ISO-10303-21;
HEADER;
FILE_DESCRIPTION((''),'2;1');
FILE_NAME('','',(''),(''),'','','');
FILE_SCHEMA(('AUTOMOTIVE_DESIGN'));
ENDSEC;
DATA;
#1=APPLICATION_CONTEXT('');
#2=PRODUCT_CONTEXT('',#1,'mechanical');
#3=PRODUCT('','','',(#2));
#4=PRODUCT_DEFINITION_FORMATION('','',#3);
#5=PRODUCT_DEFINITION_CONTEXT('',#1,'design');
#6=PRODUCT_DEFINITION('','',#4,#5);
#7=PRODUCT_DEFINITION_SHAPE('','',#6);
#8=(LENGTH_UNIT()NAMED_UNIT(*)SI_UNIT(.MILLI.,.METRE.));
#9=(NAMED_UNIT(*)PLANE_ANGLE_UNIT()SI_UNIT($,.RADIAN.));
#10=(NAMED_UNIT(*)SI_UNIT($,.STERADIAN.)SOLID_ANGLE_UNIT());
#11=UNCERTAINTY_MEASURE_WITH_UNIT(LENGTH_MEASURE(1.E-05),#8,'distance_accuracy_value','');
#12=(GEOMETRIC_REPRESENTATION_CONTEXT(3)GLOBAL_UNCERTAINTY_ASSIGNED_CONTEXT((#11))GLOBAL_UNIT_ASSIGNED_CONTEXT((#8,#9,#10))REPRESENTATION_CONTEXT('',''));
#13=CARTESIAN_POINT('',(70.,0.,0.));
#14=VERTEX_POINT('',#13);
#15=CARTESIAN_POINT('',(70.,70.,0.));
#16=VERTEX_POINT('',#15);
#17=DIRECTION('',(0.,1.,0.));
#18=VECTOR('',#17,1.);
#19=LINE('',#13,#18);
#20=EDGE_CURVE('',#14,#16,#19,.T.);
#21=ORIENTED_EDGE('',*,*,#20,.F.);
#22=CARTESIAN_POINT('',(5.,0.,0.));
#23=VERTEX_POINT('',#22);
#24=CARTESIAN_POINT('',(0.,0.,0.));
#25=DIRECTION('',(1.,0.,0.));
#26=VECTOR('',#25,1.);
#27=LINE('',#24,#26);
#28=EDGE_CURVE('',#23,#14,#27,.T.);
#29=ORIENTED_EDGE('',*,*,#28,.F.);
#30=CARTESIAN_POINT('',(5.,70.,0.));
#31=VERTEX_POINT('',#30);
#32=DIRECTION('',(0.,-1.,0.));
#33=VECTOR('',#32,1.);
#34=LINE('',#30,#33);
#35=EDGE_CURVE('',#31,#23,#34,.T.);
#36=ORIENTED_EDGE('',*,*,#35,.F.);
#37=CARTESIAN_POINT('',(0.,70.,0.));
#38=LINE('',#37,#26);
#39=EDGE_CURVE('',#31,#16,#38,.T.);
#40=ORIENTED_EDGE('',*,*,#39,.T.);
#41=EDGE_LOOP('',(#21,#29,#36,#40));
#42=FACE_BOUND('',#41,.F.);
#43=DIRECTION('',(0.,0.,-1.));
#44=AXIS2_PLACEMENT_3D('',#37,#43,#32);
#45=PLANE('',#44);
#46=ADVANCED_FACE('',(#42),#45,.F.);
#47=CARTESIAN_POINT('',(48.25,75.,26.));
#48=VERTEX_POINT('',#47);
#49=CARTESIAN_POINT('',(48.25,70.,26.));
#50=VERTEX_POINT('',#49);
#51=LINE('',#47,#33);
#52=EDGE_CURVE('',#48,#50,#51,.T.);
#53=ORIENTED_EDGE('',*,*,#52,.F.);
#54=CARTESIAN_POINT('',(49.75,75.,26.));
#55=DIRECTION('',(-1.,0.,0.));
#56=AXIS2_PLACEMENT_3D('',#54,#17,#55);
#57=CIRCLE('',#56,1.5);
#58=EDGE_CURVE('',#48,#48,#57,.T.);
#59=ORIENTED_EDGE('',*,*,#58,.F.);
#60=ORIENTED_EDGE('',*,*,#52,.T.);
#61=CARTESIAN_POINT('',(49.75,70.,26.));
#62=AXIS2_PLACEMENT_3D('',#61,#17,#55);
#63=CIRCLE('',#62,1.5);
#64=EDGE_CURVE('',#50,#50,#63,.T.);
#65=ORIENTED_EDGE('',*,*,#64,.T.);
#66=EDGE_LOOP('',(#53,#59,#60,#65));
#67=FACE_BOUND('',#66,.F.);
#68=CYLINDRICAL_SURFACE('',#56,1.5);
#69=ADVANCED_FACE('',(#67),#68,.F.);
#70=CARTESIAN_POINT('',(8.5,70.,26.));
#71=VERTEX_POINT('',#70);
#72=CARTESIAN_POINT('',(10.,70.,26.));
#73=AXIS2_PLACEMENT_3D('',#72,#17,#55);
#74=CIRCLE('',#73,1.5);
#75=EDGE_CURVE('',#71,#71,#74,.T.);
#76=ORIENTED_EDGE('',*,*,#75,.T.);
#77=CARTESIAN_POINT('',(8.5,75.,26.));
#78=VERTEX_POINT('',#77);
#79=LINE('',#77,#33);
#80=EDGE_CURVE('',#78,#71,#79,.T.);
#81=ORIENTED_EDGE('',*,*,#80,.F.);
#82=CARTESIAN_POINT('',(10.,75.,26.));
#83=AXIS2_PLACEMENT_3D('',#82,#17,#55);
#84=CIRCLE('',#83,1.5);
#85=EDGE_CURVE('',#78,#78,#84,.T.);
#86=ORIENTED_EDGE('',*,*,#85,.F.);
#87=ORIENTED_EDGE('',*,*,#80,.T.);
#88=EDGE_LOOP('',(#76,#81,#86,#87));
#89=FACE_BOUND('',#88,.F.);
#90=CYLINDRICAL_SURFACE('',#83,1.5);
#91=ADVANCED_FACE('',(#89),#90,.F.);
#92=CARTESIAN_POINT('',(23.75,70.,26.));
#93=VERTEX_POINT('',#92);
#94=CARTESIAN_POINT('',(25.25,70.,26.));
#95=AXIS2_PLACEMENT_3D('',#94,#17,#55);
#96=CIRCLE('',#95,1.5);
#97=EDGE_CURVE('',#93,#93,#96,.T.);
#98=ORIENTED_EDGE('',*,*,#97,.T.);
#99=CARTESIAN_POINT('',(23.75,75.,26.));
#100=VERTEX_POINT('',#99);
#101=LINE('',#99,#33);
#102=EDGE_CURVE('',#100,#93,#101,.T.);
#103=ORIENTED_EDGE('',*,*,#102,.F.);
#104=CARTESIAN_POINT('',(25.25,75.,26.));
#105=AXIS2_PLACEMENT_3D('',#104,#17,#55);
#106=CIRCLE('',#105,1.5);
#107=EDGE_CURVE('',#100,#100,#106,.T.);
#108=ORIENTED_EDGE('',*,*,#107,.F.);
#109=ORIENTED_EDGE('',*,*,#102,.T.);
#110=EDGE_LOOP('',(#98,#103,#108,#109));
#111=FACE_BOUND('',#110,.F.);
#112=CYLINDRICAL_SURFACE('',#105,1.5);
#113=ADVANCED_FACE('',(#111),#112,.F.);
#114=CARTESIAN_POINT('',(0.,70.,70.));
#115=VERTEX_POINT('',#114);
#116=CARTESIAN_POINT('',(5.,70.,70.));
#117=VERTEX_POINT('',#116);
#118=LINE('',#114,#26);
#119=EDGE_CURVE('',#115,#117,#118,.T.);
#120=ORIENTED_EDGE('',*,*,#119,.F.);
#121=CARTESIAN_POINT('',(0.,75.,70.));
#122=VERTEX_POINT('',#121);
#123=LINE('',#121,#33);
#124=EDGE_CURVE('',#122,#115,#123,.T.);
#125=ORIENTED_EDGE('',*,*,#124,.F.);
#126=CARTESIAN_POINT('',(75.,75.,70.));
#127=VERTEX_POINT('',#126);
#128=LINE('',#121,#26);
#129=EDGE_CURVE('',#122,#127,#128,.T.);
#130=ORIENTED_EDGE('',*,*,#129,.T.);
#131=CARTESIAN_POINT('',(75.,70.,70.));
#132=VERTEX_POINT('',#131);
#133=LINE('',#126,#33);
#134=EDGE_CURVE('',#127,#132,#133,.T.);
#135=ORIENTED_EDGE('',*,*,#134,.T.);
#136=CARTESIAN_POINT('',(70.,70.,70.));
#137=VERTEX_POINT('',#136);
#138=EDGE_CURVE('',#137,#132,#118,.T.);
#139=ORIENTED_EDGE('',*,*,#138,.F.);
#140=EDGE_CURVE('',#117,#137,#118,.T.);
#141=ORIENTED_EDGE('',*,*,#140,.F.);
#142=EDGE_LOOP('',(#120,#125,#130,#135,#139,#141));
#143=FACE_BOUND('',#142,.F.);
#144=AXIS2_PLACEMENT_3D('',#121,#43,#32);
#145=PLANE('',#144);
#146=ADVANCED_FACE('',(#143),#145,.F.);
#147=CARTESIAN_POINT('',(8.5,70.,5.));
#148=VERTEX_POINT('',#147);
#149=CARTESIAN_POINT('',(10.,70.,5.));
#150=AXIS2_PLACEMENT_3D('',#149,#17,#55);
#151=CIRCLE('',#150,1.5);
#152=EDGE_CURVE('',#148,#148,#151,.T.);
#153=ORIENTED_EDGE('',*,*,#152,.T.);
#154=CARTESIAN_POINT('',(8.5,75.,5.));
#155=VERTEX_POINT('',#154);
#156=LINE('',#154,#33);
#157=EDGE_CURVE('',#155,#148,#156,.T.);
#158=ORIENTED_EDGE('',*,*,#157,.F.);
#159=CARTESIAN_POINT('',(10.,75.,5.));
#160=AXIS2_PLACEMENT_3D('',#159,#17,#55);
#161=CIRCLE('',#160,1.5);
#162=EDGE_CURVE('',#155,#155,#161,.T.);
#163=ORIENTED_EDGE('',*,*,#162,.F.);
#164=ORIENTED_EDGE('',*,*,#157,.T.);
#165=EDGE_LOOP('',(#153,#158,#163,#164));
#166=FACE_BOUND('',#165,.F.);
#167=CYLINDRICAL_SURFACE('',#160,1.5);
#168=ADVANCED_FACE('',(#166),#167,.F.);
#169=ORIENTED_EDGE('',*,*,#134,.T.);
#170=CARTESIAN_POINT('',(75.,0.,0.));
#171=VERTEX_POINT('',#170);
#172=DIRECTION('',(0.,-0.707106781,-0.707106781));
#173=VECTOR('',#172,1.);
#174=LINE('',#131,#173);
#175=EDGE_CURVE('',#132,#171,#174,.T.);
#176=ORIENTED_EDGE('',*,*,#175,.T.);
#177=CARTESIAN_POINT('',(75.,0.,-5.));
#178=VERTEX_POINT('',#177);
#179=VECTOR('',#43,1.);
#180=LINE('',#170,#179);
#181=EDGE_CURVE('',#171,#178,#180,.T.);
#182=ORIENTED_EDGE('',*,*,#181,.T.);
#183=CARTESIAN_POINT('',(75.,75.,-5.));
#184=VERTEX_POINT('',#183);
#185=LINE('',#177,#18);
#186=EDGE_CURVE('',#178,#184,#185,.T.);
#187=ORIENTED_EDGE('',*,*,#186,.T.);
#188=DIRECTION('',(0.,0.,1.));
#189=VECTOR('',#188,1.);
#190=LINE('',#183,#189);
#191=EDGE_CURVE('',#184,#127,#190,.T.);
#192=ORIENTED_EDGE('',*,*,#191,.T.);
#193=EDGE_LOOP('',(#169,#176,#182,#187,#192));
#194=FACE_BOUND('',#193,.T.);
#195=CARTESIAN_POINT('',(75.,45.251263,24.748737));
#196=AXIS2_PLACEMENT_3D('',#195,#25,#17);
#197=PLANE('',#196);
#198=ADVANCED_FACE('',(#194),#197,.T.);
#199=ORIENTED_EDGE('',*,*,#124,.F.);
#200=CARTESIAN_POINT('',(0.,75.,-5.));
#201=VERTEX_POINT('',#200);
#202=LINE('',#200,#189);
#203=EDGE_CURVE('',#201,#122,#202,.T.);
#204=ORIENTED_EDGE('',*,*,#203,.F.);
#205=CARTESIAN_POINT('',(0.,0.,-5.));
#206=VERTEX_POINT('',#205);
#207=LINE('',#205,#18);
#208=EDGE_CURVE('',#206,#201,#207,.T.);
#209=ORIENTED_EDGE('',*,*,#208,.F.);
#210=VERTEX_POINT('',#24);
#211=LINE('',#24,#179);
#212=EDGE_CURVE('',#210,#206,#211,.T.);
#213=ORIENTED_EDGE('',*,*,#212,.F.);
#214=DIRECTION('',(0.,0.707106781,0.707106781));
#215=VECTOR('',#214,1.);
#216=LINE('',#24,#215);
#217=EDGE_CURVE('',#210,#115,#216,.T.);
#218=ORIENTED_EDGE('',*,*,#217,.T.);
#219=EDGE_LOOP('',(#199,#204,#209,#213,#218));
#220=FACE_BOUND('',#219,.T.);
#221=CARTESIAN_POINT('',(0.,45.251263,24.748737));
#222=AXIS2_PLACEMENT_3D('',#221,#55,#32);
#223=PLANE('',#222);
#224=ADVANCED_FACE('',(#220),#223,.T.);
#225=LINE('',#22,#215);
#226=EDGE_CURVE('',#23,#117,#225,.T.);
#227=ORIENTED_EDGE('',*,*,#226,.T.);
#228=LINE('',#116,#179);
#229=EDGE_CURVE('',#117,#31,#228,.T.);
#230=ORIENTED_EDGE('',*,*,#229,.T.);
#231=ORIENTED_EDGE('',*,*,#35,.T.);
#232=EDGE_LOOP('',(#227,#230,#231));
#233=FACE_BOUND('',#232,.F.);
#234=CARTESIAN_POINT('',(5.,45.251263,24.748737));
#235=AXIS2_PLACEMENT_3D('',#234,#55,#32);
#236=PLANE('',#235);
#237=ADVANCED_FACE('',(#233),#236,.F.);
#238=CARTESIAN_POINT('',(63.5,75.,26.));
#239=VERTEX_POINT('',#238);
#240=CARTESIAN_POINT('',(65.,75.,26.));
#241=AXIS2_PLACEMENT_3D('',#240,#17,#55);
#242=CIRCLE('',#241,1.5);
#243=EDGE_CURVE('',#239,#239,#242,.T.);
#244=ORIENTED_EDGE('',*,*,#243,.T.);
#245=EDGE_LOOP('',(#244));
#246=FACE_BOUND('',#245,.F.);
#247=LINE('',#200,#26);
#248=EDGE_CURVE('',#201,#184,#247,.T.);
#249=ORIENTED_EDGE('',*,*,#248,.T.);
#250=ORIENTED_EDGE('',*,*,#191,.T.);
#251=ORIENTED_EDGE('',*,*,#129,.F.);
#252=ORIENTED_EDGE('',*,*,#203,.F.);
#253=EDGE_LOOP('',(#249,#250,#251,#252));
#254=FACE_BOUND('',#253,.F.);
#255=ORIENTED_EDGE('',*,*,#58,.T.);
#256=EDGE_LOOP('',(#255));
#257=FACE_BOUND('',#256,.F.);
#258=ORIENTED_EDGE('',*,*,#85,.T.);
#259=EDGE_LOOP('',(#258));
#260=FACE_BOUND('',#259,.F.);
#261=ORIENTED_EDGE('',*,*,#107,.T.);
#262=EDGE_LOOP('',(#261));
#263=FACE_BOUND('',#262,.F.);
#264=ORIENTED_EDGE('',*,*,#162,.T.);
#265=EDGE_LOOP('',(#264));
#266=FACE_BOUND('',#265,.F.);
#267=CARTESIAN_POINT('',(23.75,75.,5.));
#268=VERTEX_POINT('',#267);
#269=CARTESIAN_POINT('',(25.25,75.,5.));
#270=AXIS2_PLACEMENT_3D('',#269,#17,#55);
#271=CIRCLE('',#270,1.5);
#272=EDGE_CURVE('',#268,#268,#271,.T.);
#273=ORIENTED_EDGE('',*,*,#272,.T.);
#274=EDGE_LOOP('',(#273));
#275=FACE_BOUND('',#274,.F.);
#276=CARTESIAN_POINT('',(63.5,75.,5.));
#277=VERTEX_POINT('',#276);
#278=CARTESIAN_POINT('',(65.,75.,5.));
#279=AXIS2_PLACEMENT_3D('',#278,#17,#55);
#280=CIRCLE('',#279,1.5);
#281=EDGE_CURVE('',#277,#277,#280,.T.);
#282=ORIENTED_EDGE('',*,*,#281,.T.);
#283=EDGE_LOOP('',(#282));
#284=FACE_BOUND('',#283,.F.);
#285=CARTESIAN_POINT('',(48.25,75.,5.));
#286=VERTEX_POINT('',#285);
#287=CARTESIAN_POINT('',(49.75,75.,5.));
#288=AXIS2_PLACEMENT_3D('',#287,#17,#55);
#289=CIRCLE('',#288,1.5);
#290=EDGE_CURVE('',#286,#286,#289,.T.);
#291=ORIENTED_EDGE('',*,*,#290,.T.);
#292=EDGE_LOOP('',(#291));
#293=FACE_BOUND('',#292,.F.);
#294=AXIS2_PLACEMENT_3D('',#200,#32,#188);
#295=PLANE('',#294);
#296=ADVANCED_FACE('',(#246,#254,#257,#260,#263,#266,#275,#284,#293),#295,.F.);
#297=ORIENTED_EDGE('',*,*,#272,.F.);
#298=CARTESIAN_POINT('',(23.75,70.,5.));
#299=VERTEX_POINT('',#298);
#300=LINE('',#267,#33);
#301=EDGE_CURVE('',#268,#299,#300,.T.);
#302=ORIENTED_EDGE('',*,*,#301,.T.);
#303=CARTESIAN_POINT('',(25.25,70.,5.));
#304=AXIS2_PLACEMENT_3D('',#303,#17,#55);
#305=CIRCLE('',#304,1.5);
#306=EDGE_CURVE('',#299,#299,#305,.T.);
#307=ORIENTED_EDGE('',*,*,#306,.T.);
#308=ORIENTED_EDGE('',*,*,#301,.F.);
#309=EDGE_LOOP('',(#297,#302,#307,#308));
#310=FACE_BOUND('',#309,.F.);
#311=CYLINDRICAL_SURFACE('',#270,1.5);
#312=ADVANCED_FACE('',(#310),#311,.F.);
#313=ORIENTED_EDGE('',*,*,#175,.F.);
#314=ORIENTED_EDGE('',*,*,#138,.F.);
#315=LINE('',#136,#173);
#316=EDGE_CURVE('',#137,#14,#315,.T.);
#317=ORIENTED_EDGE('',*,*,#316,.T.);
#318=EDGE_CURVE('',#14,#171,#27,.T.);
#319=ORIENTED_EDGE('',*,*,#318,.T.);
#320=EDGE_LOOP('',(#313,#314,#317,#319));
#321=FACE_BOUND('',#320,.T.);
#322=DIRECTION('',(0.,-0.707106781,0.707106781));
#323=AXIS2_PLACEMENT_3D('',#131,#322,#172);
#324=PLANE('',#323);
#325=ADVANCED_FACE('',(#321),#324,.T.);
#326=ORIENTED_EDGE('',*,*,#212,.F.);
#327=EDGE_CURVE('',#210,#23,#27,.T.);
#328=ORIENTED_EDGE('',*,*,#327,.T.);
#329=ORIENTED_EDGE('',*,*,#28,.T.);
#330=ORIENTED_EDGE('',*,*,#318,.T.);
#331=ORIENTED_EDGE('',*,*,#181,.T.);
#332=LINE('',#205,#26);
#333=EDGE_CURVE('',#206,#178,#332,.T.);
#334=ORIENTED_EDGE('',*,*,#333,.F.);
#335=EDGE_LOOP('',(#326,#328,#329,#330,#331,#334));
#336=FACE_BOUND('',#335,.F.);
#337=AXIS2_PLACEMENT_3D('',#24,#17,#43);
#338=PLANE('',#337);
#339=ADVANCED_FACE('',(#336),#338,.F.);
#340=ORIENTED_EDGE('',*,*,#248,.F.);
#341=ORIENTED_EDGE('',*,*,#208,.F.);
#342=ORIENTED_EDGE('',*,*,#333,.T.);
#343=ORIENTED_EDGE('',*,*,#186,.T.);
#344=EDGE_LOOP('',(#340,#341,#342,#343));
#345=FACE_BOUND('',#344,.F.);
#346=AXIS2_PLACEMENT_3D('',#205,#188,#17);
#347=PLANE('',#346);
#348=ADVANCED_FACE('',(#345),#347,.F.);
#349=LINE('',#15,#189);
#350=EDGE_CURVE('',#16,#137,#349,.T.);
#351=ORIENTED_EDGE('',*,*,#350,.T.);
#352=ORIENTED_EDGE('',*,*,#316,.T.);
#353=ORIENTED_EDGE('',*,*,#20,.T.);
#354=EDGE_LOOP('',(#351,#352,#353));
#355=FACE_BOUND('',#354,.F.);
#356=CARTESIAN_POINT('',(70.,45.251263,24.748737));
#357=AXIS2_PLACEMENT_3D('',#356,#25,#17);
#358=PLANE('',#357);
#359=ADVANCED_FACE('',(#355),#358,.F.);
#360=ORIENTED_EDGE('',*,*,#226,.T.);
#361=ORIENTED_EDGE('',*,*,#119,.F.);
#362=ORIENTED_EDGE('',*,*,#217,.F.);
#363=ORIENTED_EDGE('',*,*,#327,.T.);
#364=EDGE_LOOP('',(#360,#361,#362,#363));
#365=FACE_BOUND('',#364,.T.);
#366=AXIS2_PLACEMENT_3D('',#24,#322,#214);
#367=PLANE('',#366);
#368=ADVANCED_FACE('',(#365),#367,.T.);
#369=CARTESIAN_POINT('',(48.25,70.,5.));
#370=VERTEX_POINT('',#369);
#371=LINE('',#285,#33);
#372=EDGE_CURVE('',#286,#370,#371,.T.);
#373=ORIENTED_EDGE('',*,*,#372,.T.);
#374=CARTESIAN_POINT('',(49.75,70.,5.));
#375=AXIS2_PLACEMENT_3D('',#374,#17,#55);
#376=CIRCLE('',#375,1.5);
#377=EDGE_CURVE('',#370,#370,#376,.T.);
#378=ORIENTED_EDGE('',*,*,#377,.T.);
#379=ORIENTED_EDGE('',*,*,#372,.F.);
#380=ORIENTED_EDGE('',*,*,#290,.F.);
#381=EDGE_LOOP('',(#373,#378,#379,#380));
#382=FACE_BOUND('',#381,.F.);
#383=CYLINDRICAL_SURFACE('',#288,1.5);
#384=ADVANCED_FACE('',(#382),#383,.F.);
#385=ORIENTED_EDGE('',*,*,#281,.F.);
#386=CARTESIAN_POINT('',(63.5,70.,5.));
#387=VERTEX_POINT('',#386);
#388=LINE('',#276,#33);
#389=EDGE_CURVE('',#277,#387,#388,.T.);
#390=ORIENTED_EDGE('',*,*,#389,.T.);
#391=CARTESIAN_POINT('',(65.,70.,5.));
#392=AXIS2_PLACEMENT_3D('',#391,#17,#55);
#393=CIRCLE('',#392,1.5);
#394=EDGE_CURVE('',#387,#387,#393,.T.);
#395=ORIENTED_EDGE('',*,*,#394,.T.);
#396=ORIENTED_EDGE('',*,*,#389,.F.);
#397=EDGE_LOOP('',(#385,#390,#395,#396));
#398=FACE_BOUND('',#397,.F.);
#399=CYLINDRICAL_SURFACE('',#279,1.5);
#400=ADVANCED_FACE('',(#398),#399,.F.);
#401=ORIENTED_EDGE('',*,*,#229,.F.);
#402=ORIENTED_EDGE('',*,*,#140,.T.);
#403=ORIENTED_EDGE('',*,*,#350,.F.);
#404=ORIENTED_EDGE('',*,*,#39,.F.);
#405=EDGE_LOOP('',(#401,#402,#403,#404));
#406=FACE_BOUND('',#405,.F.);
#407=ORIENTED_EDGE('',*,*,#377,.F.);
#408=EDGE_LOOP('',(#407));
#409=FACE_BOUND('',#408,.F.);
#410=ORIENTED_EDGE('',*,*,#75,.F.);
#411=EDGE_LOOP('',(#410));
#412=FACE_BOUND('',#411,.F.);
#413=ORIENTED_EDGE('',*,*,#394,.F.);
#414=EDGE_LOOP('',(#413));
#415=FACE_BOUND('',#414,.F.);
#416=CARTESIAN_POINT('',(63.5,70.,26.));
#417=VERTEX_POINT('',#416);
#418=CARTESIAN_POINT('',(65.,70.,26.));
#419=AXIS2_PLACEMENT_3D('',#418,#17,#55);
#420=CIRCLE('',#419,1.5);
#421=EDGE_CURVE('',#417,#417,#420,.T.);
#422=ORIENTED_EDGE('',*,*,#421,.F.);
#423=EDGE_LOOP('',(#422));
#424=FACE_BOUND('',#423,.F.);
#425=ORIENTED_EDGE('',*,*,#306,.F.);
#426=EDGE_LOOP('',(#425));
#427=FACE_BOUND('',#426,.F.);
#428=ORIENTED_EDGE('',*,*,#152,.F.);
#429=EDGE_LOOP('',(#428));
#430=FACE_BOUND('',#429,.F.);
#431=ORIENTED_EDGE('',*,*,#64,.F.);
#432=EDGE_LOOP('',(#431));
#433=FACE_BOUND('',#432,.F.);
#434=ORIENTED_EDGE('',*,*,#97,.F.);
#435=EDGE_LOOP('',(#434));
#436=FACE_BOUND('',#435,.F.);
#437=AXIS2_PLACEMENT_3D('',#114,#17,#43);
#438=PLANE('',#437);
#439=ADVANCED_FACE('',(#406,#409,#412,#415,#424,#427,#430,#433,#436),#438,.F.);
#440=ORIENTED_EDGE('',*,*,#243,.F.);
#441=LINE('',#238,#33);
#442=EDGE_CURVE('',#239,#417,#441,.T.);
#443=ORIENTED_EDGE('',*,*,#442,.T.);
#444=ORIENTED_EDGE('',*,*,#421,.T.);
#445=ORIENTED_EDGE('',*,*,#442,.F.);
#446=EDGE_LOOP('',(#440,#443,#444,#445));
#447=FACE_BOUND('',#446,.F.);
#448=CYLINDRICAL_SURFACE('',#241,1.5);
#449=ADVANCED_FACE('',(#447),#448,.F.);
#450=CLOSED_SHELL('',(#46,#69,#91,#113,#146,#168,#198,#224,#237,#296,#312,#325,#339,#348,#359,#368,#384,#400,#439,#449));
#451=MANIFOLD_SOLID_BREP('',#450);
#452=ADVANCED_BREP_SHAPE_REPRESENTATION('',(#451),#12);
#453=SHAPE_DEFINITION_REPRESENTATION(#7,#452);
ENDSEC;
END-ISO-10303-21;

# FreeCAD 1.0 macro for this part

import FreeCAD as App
import Part
import Sketcher


def add_polygon(sketch, points):
    """Adds a closed chain of lines whose ends are joined by coincident constraints."""
    first, n = sketch.GeometryCount, len(points)
    for a, b in zip(points, points[1:] + points[:1]):
        sketch.addGeometry(Part.LineSegment(App.Vector(*a, 0), App.Vector(*b, 0)), False)
    for i in range(n):
        sketch.addConstraint(Sketcher.Constraint("Coincident", first + i, 2, first + (i + 1) % n, 1))

doc = App.newDocument("Part")
body = doc.addObject("PartDesign::Body", "Body")

# Sketch on YZ plane
sketch1 = body.newObject("Sketcher::SketchObject", "Sketch")
sketch1.AttachmentSupport = (doc.getObject("YZ_Plane"), [""])
sketch1.MapMode = "FlatFace"
add_polygon(sketch1, [(70, 0), (0, 0), (0, -5), (75, -5), (75, 70), (70, 70)])  # lines 0-5
sketch1.addConstraint([
    Sketcher.Constraint("Horizontal", 0),
    Sketcher.Constraint("Vertical", 1),
    Sketcher.Constraint("Horizontal", 2),
    Sketcher.Constraint("Vertical", 3),
    Sketcher.Constraint("Horizontal", 4),
    Sketcher.Constraint("Vertical", 5),
    Sketcher.Constraint("Coincident", 0, 2, -1, 1),
    Sketcher.Constraint("Equal", 4, 1),
    Sketcher.Constraint("Equal", 2, 3),
    Sketcher.Constraint("DistanceX", 0, 2, 0, 1, 70.0),
    Sketcher.Constraint("DistanceX", 2, 1, 2, 2, 75.0),
])
pad1 = body.newObject("PartDesign::Pad", "Pad")
pad1.Profile = sketch1
pad1.Length = 75

# Sketch on YZ plane
sketch2 = body.newObject("Sketcher::SketchObject", "Sketch001")
sketch2.AttachmentSupport = (doc.getObject("YZ_Plane"), [""])
sketch2.MapMode = "FlatFace"
sketch2.AttachmentOffset = App.Placement(App.Vector(0, 0, 75), App.Rotation())
add_polygon(sketch2, [(70, 0), (70, 70), (0, 0)])  # lines 0-2
sketch2.addConstraint([
    Sketcher.Constraint("Vertical", 0),
    Sketcher.Constraint("Horizontal", 2),
    Sketcher.Constraint("Coincident", 1, 2, -1, 1),
    Sketcher.Constraint("Equal", 2, 0),
    Sketcher.Constraint("DistanceX", 2, 1, 2, 2, 70.0),
])
pad2 = body.newObject("PartDesign::Pad", "Pad001")
pad2.Profile = sketch2
pad2.Length = 5
pad2.Reversed = True

# Sketch on YZ plane
sketch3 = body.newObject("Sketcher::SketchObject", "Sketch002")
sketch3.AttachmentSupport = (doc.getObject("YZ_Plane"), [""])
sketch3.MapMode = "FlatFace"
add_polygon(sketch3, [(70, 70), (70, 0), (0, 0)])  # lines 0-2
sketch3.addConstraint([
    Sketcher.Constraint("Vertical", 0),
    Sketcher.Constraint("Horizontal", 1),
    Sketcher.Constraint("Coincident", 1, 2, -1, 1),
    Sketcher.Constraint("Equal", 1, 0),
    Sketcher.Constraint("DistanceX", 1, 2, 1, 1, 70.0),
])
pad3 = body.newObject("PartDesign::Pad", "Pad002")
pad3.Profile = sketch3
pad3.Length = 5

# Sketch on XZ plane
sketch4 = body.newObject("Sketcher::SketchObject", "Sketch003")
sketch4.AttachmentSupport = (doc.getObject("XZ_Plane"), [""])
sketch4.MapMode = "FlatFace"
sketch4.AttachmentOffset = App.Placement(App.Vector(0, 0, -75), App.Rotation())
sketch4.addGeometry([
    Part.Circle(App.Vector(65, 26, 0), App.Vector(0, 0, 1), 1.5),  # 0
    Part.Circle(App.Vector(49.8, 26, 0), App.Vector(0, 0, 1), 1.5),  # 1
    Part.Circle(App.Vector(49.8, 5, 0), App.Vector(0, 0, 1), 1.5),  # 2
    Part.Circle(App.Vector(65, 5, 0), App.Vector(0, 0, 1), 1.5),  # 3
    Part.Circle(App.Vector(10, 5, 0), App.Vector(0, 0, 1), 1.5),  # 4
    Part.Circle(App.Vector(25.2, 5, 0), App.Vector(0, 0, 1), 1.5),  # 5
    Part.Circle(App.Vector(25.2, 26, 0), App.Vector(0, 0, 1), 1.5),  # 6
    Part.Circle(App.Vector(10, 26, 0), App.Vector(0, 0, 1), 1.5),  # 7
], False)
sketch4.addConstraint([
    Sketcher.Constraint("Equal", 0, 1),
    Sketcher.Constraint("Equal", 1, 2),
    Sketcher.Constraint("Equal", 2, 3),
    Sketcher.Constraint("Equal", 3, 4),
    Sketcher.Constraint("Equal", 4, 5),
    Sketcher.Constraint("Equal", 5, 6),
    Sketcher.Constraint("Equal", 6, 7),
    Sketcher.Constraint("Horizontal", 0, 3, 1, 3),
    Sketcher.Constraint("Horizontal", 2, 3, 3, 3),
    Sketcher.Constraint("Horizontal", 3, 3, 4, 3),
    Sketcher.Constraint("Horizontal", 4, 3, 5, 3),
    Sketcher.Constraint("Horizontal", 1, 3, 6, 3),
    Sketcher.Constraint("Horizontal", 6, 3, 7, 3),
    Sketcher.Constraint("Vertical", 1, 3, 2, 3),
    Sketcher.Constraint("Vertical", 0, 3, 3, 3),
    Sketcher.Constraint("Vertical", 5, 3, 6, 3),
    Sketcher.Constraint("Vertical", 4, 3, 7, 3),
    Sketcher.Constraint("Diameter", 0, 3.0),
    Sketcher.Constraint("DistanceX", -1, 1, 0, 3, 65.0),
    Sketcher.Constraint("DistanceY", -1, 1, 0, 3, 26.0),
    Sketcher.Constraint("DistanceY", -1, 1, 2, 3, 5.0),
    Sketcher.Constraint("DistanceX", -1, 1, 4, 3, 10.0),
    Sketcher.Constraint("DistanceX", 5, 3, 2, 3, 24.5),
    Sketcher.Constraint("DistanceX", -1, 1, 1, 3, 49.75),
])
pocket1 = body.newObject("PartDesign::Pocket", "Pocket")
pocket1.Profile = sketch4
pocket1.Type = "ThroughAll"
pocket1.Reversed = True

doc.recompute()
